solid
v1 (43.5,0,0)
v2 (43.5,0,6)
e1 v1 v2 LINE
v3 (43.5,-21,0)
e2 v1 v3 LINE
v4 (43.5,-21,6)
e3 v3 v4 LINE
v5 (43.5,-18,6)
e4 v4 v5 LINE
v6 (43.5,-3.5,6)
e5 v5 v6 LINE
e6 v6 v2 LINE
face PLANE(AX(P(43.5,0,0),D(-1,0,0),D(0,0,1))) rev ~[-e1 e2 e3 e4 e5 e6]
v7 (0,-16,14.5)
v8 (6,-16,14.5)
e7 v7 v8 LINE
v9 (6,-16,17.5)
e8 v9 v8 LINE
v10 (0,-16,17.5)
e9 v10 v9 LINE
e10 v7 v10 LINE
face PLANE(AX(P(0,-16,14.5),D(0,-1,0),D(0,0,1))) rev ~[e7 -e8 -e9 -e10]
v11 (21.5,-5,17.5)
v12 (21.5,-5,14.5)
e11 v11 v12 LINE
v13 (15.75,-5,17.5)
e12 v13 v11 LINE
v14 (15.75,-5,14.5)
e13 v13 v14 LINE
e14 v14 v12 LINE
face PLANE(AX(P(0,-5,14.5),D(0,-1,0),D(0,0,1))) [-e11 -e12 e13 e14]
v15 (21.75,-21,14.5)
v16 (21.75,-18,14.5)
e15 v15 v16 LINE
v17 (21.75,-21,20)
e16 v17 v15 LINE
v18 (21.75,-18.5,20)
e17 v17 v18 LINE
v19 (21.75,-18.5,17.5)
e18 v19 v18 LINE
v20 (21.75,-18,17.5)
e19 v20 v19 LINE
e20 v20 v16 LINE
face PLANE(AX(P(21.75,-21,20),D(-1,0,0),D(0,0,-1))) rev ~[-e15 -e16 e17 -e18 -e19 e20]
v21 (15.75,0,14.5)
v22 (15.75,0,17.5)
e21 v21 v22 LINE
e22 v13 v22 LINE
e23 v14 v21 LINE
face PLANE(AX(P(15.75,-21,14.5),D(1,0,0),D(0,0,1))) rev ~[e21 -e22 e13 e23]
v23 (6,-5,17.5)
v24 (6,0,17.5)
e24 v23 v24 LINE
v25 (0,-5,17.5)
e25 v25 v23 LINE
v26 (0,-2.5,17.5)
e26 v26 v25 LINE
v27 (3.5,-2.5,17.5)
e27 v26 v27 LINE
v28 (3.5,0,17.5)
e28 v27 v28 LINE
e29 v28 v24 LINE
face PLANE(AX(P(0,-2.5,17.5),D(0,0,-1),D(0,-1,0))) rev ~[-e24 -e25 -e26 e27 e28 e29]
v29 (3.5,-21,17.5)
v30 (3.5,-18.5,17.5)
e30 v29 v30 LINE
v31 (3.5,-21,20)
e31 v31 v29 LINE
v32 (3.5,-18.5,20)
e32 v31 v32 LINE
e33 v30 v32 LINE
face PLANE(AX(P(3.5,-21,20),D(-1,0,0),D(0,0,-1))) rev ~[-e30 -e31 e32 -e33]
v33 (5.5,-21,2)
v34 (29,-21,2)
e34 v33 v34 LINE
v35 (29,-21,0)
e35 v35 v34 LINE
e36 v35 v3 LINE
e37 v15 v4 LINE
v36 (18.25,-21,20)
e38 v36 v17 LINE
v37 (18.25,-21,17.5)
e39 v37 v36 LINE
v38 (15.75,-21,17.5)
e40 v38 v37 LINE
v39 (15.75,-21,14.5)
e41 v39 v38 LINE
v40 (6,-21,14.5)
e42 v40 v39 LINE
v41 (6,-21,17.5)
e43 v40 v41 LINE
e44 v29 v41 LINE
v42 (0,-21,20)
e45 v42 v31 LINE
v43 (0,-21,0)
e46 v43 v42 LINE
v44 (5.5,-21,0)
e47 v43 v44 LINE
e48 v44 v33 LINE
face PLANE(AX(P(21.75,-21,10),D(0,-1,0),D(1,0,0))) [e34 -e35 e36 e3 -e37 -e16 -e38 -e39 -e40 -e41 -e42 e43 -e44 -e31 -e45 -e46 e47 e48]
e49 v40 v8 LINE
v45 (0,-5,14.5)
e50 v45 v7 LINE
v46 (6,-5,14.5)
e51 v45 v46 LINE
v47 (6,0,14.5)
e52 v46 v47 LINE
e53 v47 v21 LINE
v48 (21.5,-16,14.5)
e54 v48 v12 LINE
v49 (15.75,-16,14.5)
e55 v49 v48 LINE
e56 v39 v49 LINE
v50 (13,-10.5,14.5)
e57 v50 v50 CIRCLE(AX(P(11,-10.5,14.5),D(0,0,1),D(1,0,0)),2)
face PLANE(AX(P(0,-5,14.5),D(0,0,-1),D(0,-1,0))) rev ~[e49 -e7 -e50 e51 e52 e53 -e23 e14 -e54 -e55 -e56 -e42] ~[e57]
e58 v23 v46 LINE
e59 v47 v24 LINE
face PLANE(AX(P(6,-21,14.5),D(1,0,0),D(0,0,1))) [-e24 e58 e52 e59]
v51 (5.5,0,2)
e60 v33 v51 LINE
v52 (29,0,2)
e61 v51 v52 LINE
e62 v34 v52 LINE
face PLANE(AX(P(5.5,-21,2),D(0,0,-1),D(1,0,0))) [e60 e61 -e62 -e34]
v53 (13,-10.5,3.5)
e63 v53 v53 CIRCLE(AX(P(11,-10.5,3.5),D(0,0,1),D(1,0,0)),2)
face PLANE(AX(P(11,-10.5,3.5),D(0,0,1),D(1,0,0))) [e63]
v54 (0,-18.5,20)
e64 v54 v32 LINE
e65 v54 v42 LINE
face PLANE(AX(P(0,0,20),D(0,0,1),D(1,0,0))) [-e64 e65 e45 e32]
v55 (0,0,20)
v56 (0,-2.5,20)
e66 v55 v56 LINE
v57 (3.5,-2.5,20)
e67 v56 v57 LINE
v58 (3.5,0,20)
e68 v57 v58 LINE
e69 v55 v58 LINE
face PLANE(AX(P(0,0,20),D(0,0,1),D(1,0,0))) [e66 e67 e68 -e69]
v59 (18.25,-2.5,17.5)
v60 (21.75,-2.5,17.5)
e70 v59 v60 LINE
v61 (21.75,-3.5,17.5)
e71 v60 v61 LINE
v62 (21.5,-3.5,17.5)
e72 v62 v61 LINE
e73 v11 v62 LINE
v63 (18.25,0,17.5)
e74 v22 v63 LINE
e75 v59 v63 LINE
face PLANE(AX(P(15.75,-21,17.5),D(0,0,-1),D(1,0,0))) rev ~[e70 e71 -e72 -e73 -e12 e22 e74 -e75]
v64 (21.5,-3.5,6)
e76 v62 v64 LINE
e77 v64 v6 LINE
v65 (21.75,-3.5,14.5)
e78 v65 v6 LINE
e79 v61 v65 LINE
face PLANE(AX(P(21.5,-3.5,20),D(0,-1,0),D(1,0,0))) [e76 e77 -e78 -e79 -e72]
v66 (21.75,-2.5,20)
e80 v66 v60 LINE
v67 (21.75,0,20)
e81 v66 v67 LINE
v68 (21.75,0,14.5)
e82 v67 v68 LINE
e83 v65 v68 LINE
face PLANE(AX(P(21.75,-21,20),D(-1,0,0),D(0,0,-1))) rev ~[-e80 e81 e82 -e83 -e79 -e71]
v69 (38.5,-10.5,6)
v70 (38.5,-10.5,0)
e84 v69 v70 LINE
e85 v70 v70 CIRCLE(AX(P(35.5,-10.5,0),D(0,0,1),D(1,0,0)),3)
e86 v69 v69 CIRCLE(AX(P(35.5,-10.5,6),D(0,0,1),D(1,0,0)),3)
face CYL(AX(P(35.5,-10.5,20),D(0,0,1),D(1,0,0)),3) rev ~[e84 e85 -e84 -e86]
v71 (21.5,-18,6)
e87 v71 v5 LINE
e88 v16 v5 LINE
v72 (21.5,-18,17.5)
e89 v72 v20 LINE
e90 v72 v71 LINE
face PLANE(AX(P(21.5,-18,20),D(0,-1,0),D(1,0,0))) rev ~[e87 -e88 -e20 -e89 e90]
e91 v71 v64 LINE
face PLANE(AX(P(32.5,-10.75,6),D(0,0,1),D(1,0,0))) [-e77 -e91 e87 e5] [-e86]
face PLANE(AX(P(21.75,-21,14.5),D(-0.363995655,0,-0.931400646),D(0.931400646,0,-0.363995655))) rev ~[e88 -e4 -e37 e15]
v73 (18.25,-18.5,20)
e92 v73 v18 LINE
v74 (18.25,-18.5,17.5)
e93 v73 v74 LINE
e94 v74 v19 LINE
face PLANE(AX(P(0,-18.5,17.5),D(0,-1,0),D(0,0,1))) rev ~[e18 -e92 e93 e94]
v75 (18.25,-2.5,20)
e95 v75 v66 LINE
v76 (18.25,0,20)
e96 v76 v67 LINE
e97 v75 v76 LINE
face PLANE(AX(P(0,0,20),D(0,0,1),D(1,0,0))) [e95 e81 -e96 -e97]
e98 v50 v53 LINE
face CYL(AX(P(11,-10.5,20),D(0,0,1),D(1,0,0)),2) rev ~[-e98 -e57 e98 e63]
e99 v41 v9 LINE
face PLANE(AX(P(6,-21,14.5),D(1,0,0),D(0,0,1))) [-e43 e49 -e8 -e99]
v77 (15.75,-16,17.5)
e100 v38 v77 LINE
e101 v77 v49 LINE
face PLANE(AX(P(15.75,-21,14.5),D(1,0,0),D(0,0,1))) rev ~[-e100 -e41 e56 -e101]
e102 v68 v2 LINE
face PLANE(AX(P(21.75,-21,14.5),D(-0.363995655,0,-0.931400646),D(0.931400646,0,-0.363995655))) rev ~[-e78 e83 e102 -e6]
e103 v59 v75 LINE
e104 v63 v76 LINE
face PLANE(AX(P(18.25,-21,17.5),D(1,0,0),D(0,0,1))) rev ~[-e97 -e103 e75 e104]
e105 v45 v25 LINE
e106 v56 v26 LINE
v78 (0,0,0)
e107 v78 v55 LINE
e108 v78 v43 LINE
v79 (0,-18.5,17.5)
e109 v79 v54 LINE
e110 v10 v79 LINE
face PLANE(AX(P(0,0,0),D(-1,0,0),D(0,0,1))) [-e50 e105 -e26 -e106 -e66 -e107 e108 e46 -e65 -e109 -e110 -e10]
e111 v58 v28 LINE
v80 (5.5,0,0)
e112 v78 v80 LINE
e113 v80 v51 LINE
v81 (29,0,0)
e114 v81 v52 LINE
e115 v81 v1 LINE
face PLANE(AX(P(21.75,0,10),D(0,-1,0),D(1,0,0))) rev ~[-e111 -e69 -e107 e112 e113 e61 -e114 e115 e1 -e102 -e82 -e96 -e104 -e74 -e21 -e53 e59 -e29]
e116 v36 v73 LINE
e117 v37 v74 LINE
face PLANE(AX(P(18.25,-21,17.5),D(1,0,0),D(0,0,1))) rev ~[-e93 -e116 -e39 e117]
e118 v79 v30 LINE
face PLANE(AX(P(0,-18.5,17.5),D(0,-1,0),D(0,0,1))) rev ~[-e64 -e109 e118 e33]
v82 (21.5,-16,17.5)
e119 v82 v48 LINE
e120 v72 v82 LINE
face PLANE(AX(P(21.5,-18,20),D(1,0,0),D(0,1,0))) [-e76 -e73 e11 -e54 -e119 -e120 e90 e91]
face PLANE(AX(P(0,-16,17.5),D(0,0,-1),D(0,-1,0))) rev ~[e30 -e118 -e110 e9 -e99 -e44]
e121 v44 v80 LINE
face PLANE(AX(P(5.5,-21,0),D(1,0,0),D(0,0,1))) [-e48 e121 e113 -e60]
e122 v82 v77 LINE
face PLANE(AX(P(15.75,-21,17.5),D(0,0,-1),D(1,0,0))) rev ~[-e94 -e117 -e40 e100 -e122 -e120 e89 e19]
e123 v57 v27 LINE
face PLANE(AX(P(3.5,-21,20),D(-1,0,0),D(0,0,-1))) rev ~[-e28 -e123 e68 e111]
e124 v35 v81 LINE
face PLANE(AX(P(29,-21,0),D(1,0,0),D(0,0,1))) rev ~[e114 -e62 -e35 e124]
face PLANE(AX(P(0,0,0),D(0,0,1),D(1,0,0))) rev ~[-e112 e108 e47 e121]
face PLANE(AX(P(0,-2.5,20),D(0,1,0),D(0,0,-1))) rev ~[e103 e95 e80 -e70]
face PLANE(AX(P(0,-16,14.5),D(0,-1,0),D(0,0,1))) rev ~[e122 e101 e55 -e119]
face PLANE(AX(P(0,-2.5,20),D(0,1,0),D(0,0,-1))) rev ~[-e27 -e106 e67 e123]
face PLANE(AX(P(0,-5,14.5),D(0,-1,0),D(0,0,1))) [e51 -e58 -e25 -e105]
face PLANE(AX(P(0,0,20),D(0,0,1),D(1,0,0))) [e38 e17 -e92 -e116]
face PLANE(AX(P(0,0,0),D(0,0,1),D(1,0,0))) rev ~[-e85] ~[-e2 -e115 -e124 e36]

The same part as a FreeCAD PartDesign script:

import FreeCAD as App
import Part
import Sketcher

V = App.Vector
Q = App.Units.Quantity


def add_polygon(sketch, points):
    """Adds a closed chain of lines whose ends are joined by coincident constraints."""
    first, n = sketch.GeometryCount, len(points)
    for a, b in zip(points, points[1:] + points[:1]):
        sketch.addGeometry(Part.LineSegment(App.Vector(*a, 0), App.Vector(*b, 0)), False)
    for i in range(n):
        sketch.addConstraint(Sketcher.Constraint("Coincident", first + i, 2, first + (i + 1) % n, 1))

doc = App.newDocument("Part")
params = doc.addObject("Spreadsheet::Sheet", "Params")
for row, (alias, value) in enumerate([
    ("sketch1_height", "20 mm"),
    ("sketch1_width", "43.5 mm"),
    ("pad1_length", "21 mm"),
    ("sketch2_diameter", "6 mm"),
    ("sketch3_diameter", "4 mm"),
    ("pocket2_length", "16.5 mm"),
    ("sketch4_diameter", "6 mm"),
    ("sketch4_width", "22 mm"),
    ("sketch4_height", "14.5 mm"),
    ("pocket3_length", "14 mm"),
    ("sketch5_height", "14 mm"),
    ("sketch5_height2", "5.5 mm"),
    ("sketch5_width", "21.75 mm"),
    ("sketch6_height", "3 mm"),
    ("sketch6_height2", "2 mm"),
    ("sketch6_width", "2.5 mm"),
    ("sketch6_width2", "23.5 mm"),
    ("sketch6_width3", "9.75 mm"),
    ("sketch7_width", "16 mm"),
    ("sketch7_width2", "11 mm"),
    ("sketch7_height", "3 mm"),
], start=1):
    params.set(f"A{row}", alias)
    params.set(f"B{row}", "=" + value)
    params.setAlias(f"B{row}", alias)

body = doc.addObject("PartDesign::Body", "Body")

# Sketch on XZ plane
sketch1 = body.newObject("Sketcher::SketchObject", "Sketch")
sketch1.AttachmentSupport = (doc.getObject("XZ_Plane"), [""])
sketch1.MapMode = "FlatFace"
add_polygon(sketch1, [(0, 20), (0, 0), (44, 0), (44, 20)])  # lines 0-3
sketch1.addConstraint([
    Sketcher.Constraint("Vertical", 0),
    Sketcher.Constraint("Horizontal", 1),
    Sketcher.Constraint("Vertical", 2),
    Sketcher.Constraint("Horizontal", 3),
    Sketcher.Constraint("Coincident", 0, 2, -1, 1),
    Sketcher.Constraint("DistanceY", 0, 2, 0, 1, Q("20 mm")),
    Sketcher.Constraint("DistanceX", 1, 1, 1, 2, Q("43.5 mm")),
])
sketch1.setExpression("Constraints[9]", "Params.sketch1_height")
sketch1.setExpression("Constraints[10]", "Params.sketch1_width")
pad1 = body.newObject("PartDesign::Pad", "Pad")
pad1.Profile = sketch1
pad1.setExpression("Length", "Params.pad1_length")

# Sketch on XY plane
sketch2 = body.newObject("Sketcher::SketchObject", "Sketch001")
sketch2.AttachmentSupport = (doc.getObject("XY_Plane"), [""])
sketch2.MapMode = "FlatFace"
sketch2.AttachmentOffset = App.Placement(V(0, 0, 20), App.Rotation())
sketch2.addGeometry(Part.Circle(V(35.5, -10.5, 0), V(0, 0, 1), 3), False)
sketch2.addConstraint([
    Sketcher.Constraint("Diameter", 0, Q("6 mm")),
    Sketcher.Constraint("DistanceX", -1, 1, 0, 3, Q("35.5 mm")),
    Sketcher.Constraint("DistanceY", 0, 3, -1, 1, Q("10.5 mm")),
])
sketch2.setExpression("Constraints[0]", "Params.sketch2_diameter")
pocket1 = body.newObject("PartDesign::Pocket", "Pocket")
pocket1.Profile = sketch2
pocket1.Type = "ThroughAll"

# Sketch on XY plane
sketch3 = body.newObject("Sketcher::SketchObject", "Sketch002")
sketch3.AttachmentSupport = (doc.getObject("XY_Plane"), [""])
sketch3.MapMode = "FlatFace"
sketch3.AttachmentOffset = App.Placement(V(0, 0, 20), App.Rotation())
sketch3.addGeometry(Part.Circle(V(11, -10.5, 0), V(0, 0, 1), 2), False)
sketch3.addConstraint([
    Sketcher.Constraint("Diameter", 0, Q("4 mm")),
    Sketcher.Constraint("DistanceX", -1, 1, 0, 3, Q("11 mm")),
    Sketcher.Constraint("DistanceY", 0, 3, -1, 1, Q("10.5 mm")),
])
sketch3.setExpression("Constraints[0]", "Params.sketch3_diameter")
pocket2 = body.newObject("PartDesign::Pocket", "Pocket001")
pocket2.Profile = sketch3
pocket2.setExpression("Length", "Params.pocket2_length")

# Sketch on XY plane
sketch4 = body.newObject("Sketcher::SketchObject", "Sketch003")
sketch4.AttachmentSupport = (doc.getObject("XY_Plane"), [""])
sketch4.MapMode = "FlatFace"
sketch4.AttachmentOffset = App.Placement(V(0, 0, 20), App.Rotation())
add_polygon(sketch4, [(21.5, -3.5), (21.5, -18), (43.5, -18), (43.5, -3.5)])  # lines 0-3
sketch4.addGeometry(Part.Circle(V(35.5, -10.5, 0), V(0, 0, 1), 3), False)  # 4
sketch4.addConstraint([
    Sketcher.Constraint("Vertical", 0),
    Sketcher.Constraint("Horizontal", 1),
    Sketcher.Constraint("Vertical", 2),
    Sketcher.Constraint("Horizontal", 3),
    Sketcher.Constraint("Diameter", 4, Q("6 mm")),
    Sketcher.Constraint("DistanceX", 1, 1, 1, 2, Q("22 mm")),
    Sketcher.Constraint("DistanceY", 0, 2, 0, 1, Q("14.5 mm")),
    Sketcher.Constraint("DistanceY", 0, 2, -1, 1, Q("18 mm")),
    Sketcher.Constraint("DistanceX", 0, 2, 4, 3, Q("14 mm")),
    Sketcher.Constraint("DistanceY", 4, 3, 2, 2, Q("7 mm")),
    Sketcher.Constraint("DistanceX", -1, 1, 4, 3, Q("35.5 mm")),
])
sketch4.setExpression("Constraints[8]", "Params.sketch4_diameter")
sketch4.setExpression("Constraints[9]", "Params.sketch4_width")
sketch4.setExpression("Constraints[10]", "Params.sketch4_height")
pocket3 = body.newObject("PartDesign::Pocket", "Pocket002")
pocket3.Profile = sketch4
pocket3.setExpression("Length", "Params.pocket3_length")

# Sketch on XZ plane
sketch5 = body.newObject("Sketcher::SketchObject", "Sketch004")
sketch5.AttachmentSupport = (doc.getObject("XZ_Plane"), [""])
sketch5.MapMode = "FlatFace"
sketch5.AttachmentOffset = App.Placement(V(0, 0, 21), App.Rotation())
add_polygon(sketch5, [(44, 6), (44, 20), (22, 20), (22, 14)])  # lines 0-3
sketch5.addConstraint([
    Sketcher.Constraint("Vertical", 0),
    Sketcher.Constraint("Horizontal", 1),
    Sketcher.Constraint("Vertical", 2),
    Sketcher.Constraint("DistanceY", 0, 1, 0, 2, Q("14 mm")),
    Sketcher.Constraint("DistanceY", 2, 2, 2, 1, Q("5.5 mm")),
    Sketcher.Constraint("DistanceY", -1, 1, 0, 2, Q("20 mm")),
    Sketcher.Constraint("DistanceX", 1, 2, 1, 1, Q("21.75 mm")),
    Sketcher.Constraint("DistanceX", -1, 1, 0, 2, Q("43.5 mm")),
])
sketch5.setExpression("Constraints[7]", "Params.sketch5_height")
sketch5.setExpression("Constraints[8]", "Params.sketch5_height2")
sketch5.setExpression("Constraints[10]", "Params.sketch5_width")
pocket4 = body.newObject("PartDesign::Pocket", "Pocket003")
pocket4.Profile = sketch5
pocket4.Type = "ThroughAll"

# Sketch on XZ plane
sketch6 = body.newObject("Sketcher::SketchObject", "Sketch005")
sketch6.AttachmentSupport = (doc.getObject("XZ_Plane"), [""])
sketch6.MapMode = "FlatFace"
sketch6.AttachmentOffset = App.Placement(V(0, 0, 21), App.Rotation())
add_polygon(sketch6, [(6, 17.5), (6, 14.5), (15.8, 14.5), (15.8, 17.5), (18.2, 17.5), (18.2, 20), (3.5, 20), (3.5, 17.5)])  # lines 0-7
add_polygon(sketch6, [(5.5, 2), (5.5, 0), (29, 0), (29, 2)])  # lines 8-11
sketch6.addConstraint([
    Sketcher.Constraint("Vertical", 0),
    Sketcher.Constraint("Horizontal", 1),
    Sketcher.Constraint("Vertical", 2),
    Sketcher.Constraint("Horizontal", 3),
    Sketcher.Constraint("Vertical", 4),
    Sketcher.Constraint("Horizontal", 5),
    Sketcher.Constraint("Vertical", 6),
    Sketcher.Constraint("Horizontal", 7),
    Sketcher.Constraint("Vertical", 8),
    Sketcher.Constraint("Horizontal", 9),
    Sketcher.Constraint("Vertical", 10),
    Sketcher.Constraint("Horizontal", 11),
    Sketcher.Constraint("PointOnObject", 8, 2, -1),
    Sketcher.Constraint("Horizontal", 3, 2, 6, 2),
    Sketcher.Constraint("Equal", 3, 7),
    Sketcher.Constraint("Equal", 7, 4),
    Sketcher.Constraint("DistanceY", 0, 2, 0, 1, Q("3 mm")),
    Sketcher.Constraint("DistanceY", 8, 2, 8, 1, Q("2 mm")),
    Sketcher.Constraint("DistanceX", 3, 1, 3, 2, Q("2.5 mm")),
    Sketcher.Constraint("DistanceX", 9, 1, 9, 2, Q("23.5 mm")),
    Sketcher.Constraint("DistanceX", -1, 1, 0, 2, Q("6 mm")),
    Sketcher.Constraint("DistanceY", -1, 1, 4, 2, Q("20 mm")),
    Sketcher.Constraint("DistanceX", -1, 1, 9, 2, Q("29 mm")),
    Sketcher.Constraint("DistanceX", 1, 1, 1, 2, Q("9.75 mm")),
])
sketch6.setExpression("Constraints[28]", "Params.sketch6_height")
sketch6.setExpression("Constraints[29]", "Params.sketch6_height2")
sketch6.setExpression("Constraints[30]", "Params.sketch6_width")
sketch6.setExpression("Constraints[31]", "Params.sketch6_width2")
sketch6.setExpression("Constraints[35]", "Params.sketch6_width3")
pocket5 = body.newObject("PartDesign::Pocket", "Pocket004")
pocket5.Profile = sketch6
pocket5.Type = "ThroughAll"

# Sketch on YZ plane
sketch7 = body.newObject("Sketcher::SketchObject", "Sketch006")
sketch7.AttachmentSupport = (doc.getObject("YZ_Plane"), [""])
sketch7.MapMode = "FlatFace"
add_polygon(sketch7, [(-18.5, 20), (-2.5, 20), (-2.5, 17.5), (-5, 17.5), (-5, 14.5), (-16, 14.5), (-16, 17.5), (-18.5, 17.5)])  # lines 0-7
sketch7.addConstraint([
    Sketcher.Constraint("Horizontal", 0),
    Sketcher.Constraint("Vertical", 1),
    Sketcher.Constraint("Horizontal", 2),
    Sketcher.Constraint("Vertical", 3),
    Sketcher.Constraint("Horizontal", 4),
    Sketcher.Constraint("Vertical", 5),
    Sketcher.Constraint("Horizontal", 6),
    Sketcher.Constraint("Vertical", 7),
    Sketcher.Constraint("Horizontal", 2, 2, 5, 2),
    Sketcher.Constraint("Equal", 2, 6),
    Sketcher.Constraint("Equal", 6, 1),
    Sketcher.Constraint("DistanceX", 0, 1, 0, 2, Q("16 mm")),
    Sketcher.Constraint("DistanceX", 4, 2, 4, 1, Q("11 mm")),
    Sketcher.Constraint("DistanceY", 3, 2, 3, 1, Q("3 mm")),
    Sketcher.Constraint("DistanceY", -1, 1, 0, 2, Q("20 mm")),
    Sketcher.Constraint("DistanceX", 2, 2, -1, 1, Q("5 mm")),
])
sketch7.setExpression("Constraints[19]", "Params.sketch7_width")
sketch7.setExpression("Constraints[20]", "Params.sketch7_width2")
sketch7.setExpression("Constraints[21]", "Params.sketch7_height")
pocket6 = body.newObject("PartDesign::Pocket", "Pocket005")
pocket6.Profile = sketch7
pocket6.Type = "ThroughAll"
pocket6.Reversed = True

doc.recompute()
